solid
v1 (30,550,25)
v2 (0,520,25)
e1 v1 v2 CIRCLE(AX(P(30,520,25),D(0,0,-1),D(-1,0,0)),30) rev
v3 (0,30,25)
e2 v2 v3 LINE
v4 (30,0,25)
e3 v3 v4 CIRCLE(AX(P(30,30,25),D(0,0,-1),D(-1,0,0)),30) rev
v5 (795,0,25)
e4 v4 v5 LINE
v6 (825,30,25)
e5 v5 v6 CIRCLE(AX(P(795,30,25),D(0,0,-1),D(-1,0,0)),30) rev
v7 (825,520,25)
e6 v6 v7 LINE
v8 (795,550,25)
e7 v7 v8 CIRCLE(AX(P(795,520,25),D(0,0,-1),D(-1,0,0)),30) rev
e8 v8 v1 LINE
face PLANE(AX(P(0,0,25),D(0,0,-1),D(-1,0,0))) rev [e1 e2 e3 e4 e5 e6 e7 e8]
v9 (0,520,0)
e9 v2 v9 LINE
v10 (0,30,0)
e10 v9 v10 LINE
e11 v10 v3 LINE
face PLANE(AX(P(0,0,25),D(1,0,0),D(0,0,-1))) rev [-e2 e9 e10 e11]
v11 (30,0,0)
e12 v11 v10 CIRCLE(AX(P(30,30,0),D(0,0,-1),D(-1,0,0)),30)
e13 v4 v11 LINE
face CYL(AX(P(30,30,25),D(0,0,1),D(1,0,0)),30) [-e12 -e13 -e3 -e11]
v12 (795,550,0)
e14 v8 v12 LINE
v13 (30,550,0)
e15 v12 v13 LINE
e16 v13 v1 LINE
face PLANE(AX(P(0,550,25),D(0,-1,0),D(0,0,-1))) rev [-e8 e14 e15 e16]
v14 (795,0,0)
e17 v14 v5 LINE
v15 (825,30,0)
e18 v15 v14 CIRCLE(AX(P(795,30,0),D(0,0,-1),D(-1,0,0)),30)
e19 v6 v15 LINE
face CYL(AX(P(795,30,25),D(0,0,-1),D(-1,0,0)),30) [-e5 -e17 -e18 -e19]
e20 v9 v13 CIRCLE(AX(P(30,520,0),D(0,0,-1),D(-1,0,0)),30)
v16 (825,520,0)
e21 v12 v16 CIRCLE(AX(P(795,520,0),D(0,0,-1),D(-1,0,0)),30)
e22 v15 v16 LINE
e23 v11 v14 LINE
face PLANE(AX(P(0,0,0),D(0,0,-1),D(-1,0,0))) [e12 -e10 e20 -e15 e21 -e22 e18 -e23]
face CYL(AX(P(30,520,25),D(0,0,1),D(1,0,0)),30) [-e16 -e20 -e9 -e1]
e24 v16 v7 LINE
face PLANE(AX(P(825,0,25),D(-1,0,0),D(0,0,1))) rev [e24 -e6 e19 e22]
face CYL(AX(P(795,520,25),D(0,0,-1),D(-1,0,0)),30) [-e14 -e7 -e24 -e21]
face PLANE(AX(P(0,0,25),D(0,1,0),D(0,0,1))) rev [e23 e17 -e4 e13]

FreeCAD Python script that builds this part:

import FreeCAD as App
import Part
import Sketcher

V = App.Vector


def edges_at(feature, points):
    """Names of the edges that pass closest to the given points."""
    edges = feature.Shape.Edges
    near = lambda p: min(range(len(edges)), key=lambda i: edges[i].distToShape(Part.Vertex(*p))[0])
    return sorted({f"Edge{near(p) + 1}" for p in points})


def add_polygon(sketch, points):
    """Adds a closed chain of lines whose ends are joined by coincident constraints."""
    first, n = sketch.GeometryCount, len(points)
    for a, b in zip(points, points[1:] + points[:1]):
        sketch.addGeometry(Part.LineSegment(App.Vector(*a, 0), App.Vector(*b, 0)), False)
    for i in range(n):
        sketch.addConstraint(Sketcher.Constraint("Coincident", first + i, 2, first + (i + 1) % n, 1))

doc = App.newDocument("Part")
body = doc.addObject("PartDesign::Body", "Body")

sketch1 = body.newObject("Sketcher::SketchObject", "Sketch")
sketch1.AttachmentSupport = (doc.getObject("XY_Plane"), [""])
sketch1.MapMode = "FlatFace"
add_polygon(sketch1, [(0, 550), (0, 0), (825, 0), (825, 550)])
sketch1.addConstraint(Sketcher.Constraint("Vertical", 0))
sketch1.addConstraint(Sketcher.Constraint("Horizontal", 1))
sketch1.addConstraint(Sketcher.Constraint("Vertical", 2))
sketch1.addConstraint(Sketcher.Constraint("Horizontal", 3))
sketch1.addConstraint(Sketcher.Constraint("Coincident", 0, 2, -1, 1))
sketch1.addConstraint(Sketcher.Constraint("DistanceX", 1, 1, 1, 2, 825.0))
sketch1.addConstraint(Sketcher.Constraint("DistanceY", 0, 2, 0, 1, 550.0))
pad1 = body.newObject("PartDesign::Pad", "Pad")
pad1.Profile = sketch1
pad1.Length = 25
doc.recompute()

fillet = body.newObject("PartDesign::Fillet", "Fillet")
fillet.Base = (pad1, edges_at(pad1, [(0, 550, 12.5)]))
fillet.Radius = 30
doc.recompute()

fillet2 = body.newObject("PartDesign::Fillet", "Fillet001")
fillet2.Base = (fillet, edges_at(fillet, [(825, 550, 12.5)]))
fillet2.Radius = 30
doc.recompute()

fillet3 = body.newObject("PartDesign::Fillet", "Fillet002")
fillet3.Base = (fillet2, edges_at(fillet2, [(0, 0, 12.5)]))
fillet3.Radius = 30
doc.recompute()

fillet4 = body.newObject("PartDesign::Fillet", "Fillet003")
fillet4.Base = (fillet3, edges_at(fillet3, [(825, 0, 12.5)]))
fillet4.Radius = 30

doc.recompute()
